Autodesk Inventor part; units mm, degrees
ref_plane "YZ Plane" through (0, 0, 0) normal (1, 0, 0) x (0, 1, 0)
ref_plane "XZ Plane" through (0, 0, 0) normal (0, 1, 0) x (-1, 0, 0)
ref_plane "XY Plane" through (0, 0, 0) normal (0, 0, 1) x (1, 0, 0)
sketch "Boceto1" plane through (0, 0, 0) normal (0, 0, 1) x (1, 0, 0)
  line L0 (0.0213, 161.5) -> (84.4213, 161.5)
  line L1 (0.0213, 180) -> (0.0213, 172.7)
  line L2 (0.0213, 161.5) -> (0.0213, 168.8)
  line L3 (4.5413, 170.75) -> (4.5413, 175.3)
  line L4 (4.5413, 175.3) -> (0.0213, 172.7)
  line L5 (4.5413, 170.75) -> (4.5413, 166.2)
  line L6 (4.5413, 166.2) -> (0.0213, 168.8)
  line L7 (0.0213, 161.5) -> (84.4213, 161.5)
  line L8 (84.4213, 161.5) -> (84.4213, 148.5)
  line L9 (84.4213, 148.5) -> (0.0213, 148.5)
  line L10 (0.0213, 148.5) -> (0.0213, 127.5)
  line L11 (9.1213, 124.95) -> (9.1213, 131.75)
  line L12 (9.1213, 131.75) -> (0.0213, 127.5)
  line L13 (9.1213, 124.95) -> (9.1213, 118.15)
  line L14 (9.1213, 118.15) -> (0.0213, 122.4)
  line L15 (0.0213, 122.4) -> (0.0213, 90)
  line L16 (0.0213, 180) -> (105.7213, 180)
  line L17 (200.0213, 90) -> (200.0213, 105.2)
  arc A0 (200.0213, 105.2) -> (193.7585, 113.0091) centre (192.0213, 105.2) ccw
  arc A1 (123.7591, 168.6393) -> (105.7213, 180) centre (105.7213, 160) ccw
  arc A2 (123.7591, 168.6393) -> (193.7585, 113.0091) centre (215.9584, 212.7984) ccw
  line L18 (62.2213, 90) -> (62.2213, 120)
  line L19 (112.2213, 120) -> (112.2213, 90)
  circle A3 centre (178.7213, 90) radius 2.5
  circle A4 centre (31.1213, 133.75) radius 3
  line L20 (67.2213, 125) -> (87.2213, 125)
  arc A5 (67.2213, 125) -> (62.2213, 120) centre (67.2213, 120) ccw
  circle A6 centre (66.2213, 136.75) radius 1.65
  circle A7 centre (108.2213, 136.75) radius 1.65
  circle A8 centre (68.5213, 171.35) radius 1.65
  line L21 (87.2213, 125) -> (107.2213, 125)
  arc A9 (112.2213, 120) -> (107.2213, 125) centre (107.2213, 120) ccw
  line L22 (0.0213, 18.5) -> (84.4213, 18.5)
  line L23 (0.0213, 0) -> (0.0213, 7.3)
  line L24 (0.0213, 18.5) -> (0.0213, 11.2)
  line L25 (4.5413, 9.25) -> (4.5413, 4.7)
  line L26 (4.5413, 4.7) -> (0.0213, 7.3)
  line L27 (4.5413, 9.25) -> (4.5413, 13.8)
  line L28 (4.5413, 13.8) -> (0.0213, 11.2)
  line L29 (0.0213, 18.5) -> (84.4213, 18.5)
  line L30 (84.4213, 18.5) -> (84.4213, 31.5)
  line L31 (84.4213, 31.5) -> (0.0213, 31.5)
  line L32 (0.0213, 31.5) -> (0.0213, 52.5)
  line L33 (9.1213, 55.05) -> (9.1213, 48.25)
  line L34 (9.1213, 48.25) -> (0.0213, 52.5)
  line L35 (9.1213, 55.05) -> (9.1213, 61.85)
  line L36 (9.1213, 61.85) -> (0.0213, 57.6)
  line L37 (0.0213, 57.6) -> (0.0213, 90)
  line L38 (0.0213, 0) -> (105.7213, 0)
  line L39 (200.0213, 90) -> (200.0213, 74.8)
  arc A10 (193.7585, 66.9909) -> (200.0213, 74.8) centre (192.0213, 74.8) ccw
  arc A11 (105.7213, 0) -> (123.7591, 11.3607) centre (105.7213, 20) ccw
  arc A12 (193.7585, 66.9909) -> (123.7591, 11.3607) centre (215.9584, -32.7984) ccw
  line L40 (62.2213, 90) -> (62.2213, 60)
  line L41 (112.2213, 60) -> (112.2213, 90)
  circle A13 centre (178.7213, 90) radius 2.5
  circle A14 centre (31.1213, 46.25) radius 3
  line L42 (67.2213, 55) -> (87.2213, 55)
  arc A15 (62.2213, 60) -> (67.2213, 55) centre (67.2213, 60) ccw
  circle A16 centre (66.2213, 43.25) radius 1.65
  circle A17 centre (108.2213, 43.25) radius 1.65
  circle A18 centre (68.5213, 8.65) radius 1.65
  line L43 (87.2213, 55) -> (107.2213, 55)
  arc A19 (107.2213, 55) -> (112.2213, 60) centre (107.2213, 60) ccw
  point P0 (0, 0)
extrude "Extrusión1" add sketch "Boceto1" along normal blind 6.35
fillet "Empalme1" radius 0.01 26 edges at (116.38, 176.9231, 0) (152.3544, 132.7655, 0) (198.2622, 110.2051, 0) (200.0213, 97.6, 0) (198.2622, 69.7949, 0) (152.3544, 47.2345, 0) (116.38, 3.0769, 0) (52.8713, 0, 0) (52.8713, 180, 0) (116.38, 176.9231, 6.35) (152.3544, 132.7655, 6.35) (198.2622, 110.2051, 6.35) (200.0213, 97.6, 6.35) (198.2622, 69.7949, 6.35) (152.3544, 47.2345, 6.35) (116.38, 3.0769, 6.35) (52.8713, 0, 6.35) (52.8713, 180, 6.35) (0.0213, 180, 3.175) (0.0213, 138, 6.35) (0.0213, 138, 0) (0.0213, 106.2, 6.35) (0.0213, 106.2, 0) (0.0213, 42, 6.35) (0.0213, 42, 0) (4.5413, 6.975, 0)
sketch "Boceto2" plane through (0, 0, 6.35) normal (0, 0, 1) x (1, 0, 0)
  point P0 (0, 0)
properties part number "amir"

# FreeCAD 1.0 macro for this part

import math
import FreeCAD as App
import Part
import Sketcher
from FreeCAD import Vector
Q = App.Units.Quantity


def edges_at(feature, points):
    """Names of the edges that pass closest to the given points."""
    edges = feature.Shape.Edges
    near = lambda p: min(range(len(edges)), key=lambda i: edges[i].distToShape(Part.Vertex(*p))[0])
    return sorted({f"Edge{near(p) + 1}" for p in points})

doc = App.newDocument("Part")
body = doc.addObject("PartDesign::Body", "Body")

sketch1 = body.newObject("Sketcher::SketchObject", "Sketch")
sketch1.AttachmentSupport = (doc.getObject("XY_Plane"), [""])
sketch1.MapMode = "FlatFace"
sketch1.addGeometry(Part.LineSegment(Vector(0.0213, 168.8, 0), Vector(0.0213, 161.5, 0)), False)
sketch1.addGeometry(Part.LineSegment(Vector(0.0213, 161.5, 0), Vector(84.4213, 161.5, 0)), False)
sketch1.addGeometry(Part.LineSegment(Vector(84.4213, 161.5, 0), Vector(84.4213, 148.5, 0)), False)
sketch1.addGeometry(Part.LineSegment(Vector(84.4213, 148.5, 0), Vector(0.0213, 148.5, 0)), False)
sketch1.addGeometry(Part.LineSegment(Vector(0.0213, 148.5, 0), Vector(0.0213, 127.5, 0)), False)
sketch1.addGeometry(Part.LineSegment(Vector(0.0213, 127.5, 0), Vector(9.1213, 131.75, 0)), False)
sketch1.addGeometry(Part.LineSegment(Vector(9.1213, 131.75, 0), Vector(9.1213, 118.15, 0)), False)
sketch1.addGeometry(Part.LineSegment(Vector(9.1213, 118.15, 0), Vector(0.0213, 122.4, 0)), False)
sketch1.addGeometry(Part.LineSegment(Vector(0.0213, 122.4, 0), Vector(0.0213, 57.6, 0)), False)
sketch1.addGeometry(Part.LineSegment(Vector(0.0213, 57.6, 0), Vector(9.1213, 61.85, 0)), False)
sketch1.addGeometry(Part.LineSegment(Vector(9.1213, 61.85, 0), Vector(9.1213, 48.25, 0)), False)
sketch1.addGeometry(Part.LineSegment(Vector(9.1213, 48.25, 0), Vector(0.0213, 52.5, 0)), False)
sketch1.addGeometry(Part.LineSegment(Vector(0.0213, 52.5, 0), Vector(0.0213, 31.5, 0)), False)
sketch1.addGeometry(Part.LineSegment(Vector(0.0213, 31.5, 0), Vector(84.4213, 31.5, 0)), False)
sketch1.addGeometry(Part.LineSegment(Vector(84.4213, 31.5, 0), Vector(84.4213, 18.5, 0)), False)
sketch1.addGeometry(Part.LineSegment(Vector(84.4213, 18.5, 0), Vector(0.0213, 18.5, 0)), False)
sketch1.addGeometry(Part.LineSegment(Vector(0.0213, 18.5, 0), Vector(0.0213, 11.2, 0)), False)
sketch1.addGeometry(Part.LineSegment(Vector(0.0213, 11.2, 0), Vector(4.5413, 13.8, 0)), False)
sketch1.addGeometry(Part.LineSegment(Vector(4.5413, 13.8, 0), Vector(4.5413, 4.7, 0)), False)
sketch1.addGeometry(Part.LineSegment(Vector(4.5413, 4.7, 0), Vector(0.0213, 7.3, 0)), False)
sketch1.addGeometry(Part.LineSegment(Vector(0.0213, 7.3, 0), Vector(0.0213, 0, 0)), False)
sketch1.addGeometry(Part.LineSegment(Vector(0.0213, 0, 0), Vector(105.7213, 0, 0)), False)
sketch1.addGeometry(Part.ArcOfCircle(Part.Circle(Vector(105.7213, 20, 0), Vector(0, 0, 1), 20), math.radians(-90), math.radians(-25.592338)), False)
sketch1.addGeometry(Part.ArcOfCircle(Part.Circle(Vector(215.9584, -32.7984, 0), Vector(0, 0, 1), 102.228861), math.radians(102.542212), math.radians(154.407785)), False)
sketch1.addGeometry(Part.ArcOfCircle(Part.Circle(Vector(192.0213, 74.8, 0), Vector(0, 0, 1), 7.999994), math.radians(-77.458297), math.radians(0)), False)
sketch1.addGeometry(Part.LineSegment(Vector(200.0213, 74.8, 0), Vector(200.0213, 105.2, 0)), False)
sketch1.addGeometry(Part.ArcOfCircle(Part.Circle(Vector(192.0213, 105.2, 0), Vector(0, 0, 1), 8), math.radians(0), math.radians(77.458297)), False)
sketch1.addGeometry(Part.ArcOfCircle(Part.Circle(Vector(215.9584, 212.7984, 0), Vector(0, 0, 1), 102.228846), math.radians(-154.407785), math.radians(-102.542212)), False)
sketch1.addGeometry(Part.ArcOfCircle(Part.Circle(Vector(105.7213, 160, 0), Vector(0, 0, 1), 19.999993), math.radians(25.592338), math.radians(90)), False)
sketch1.addGeometry(Part.LineSegment(Vector(105.7213, 180, 0), Vector(0.0213, 180, 0)), False)
sketch1.addGeometry(Part.LineSegment(Vector(0.0213, 180, 0), Vector(0.0213, 172.7, 0)), False)
sketch1.addGeometry(Part.LineSegment(Vector(0.0213, 172.7, 0), Vector(4.5413, 175.3, 0)), False)
sketch1.addGeometry(Part.LineSegment(Vector(4.5413, 175.3, 0), Vector(4.5413, 166.2, 0)), False)
sketch1.addGeometry(Part.LineSegment(Vector(4.5413, 166.2, 0), Vector(0.0213, 168.8, 0)), False)
sketch1.addGeometry(Part.Circle(Vector(68.5213, 8.65, 0), Vector(0, 0, 1), 1.65), False)
sketch1.addGeometry(Part.Circle(Vector(66.2213, 43.25, 0), Vector(0, 0, 1), 1.65), False)
sketch1.addGeometry(Part.Circle(Vector(31.1213, 46.25, 0), Vector(0, 0, 1), 3), False)
sketch1.addGeometry(Part.Circle(Vector(108.2213, 43.25, 0), Vector(0, 0, 1), 1.65), False)
sketch1.addGeometry(Part.Circle(Vector(31.1213, 133.75, 0), Vector(0, 0, 1), 3), False)
sketch1.addGeometry(Part.LineSegment(Vector(62.2213, 60, 0), Vector(62.2213, 120, 0)), False)
sketch1.addGeometry(Part.ArcOfCircle(Part.Circle(Vector(67.2213, 120, 0), Vector(0, 0, 1), 5), math.radians(90), math.radians(180)), False)
sketch1.addGeometry(Part.LineSegment(Vector(67.2213, 125, 0), Vector(107.2213, 125, 0)), False)
sketch1.addGeometry(Part.ArcOfCircle(Part.Circle(Vector(107.2213, 120, 0), Vector(0, 0, 1), 5), math.radians(0), math.radians(90)), False)
sketch1.addGeometry(Part.LineSegment(Vector(112.2213, 120, 0), Vector(112.2213, 60, 0)), False)
sketch1.addGeometry(Part.ArcOfCircle(Part.Circle(Vector(107.2213, 60, 0), Vector(0, 0, 1), 5), math.radians(-90), math.radians(0)), False)
sketch1.addGeometry(Part.LineSegment(Vector(107.2213, 55, 0), Vector(67.2213, 55, 0)), False)
sketch1.addGeometry(Part.ArcOfCircle(Part.Circle(Vector(67.2213, 60, 0), Vector(0, 0, 1), 5), math.radians(180), math.radians(270)), False)
sketch1.addGeometry(Part.Circle(Vector(66.2213, 136.75, 0), Vector(0, 0, 1), 1.65), False)
sketch1.addGeometry(Part.Circle(Vector(68.5213, 171.35, 0), Vector(0, 0, 1), 1.65), False)
sketch1.addGeometry(Part.Circle(Vector(178.7213, 90, 0), Vector(0, 0, 1), 2.5), False)
sketch1.addGeometry(Part.Circle(Vector(108.2213, 136.75, 0), Vector(0, 0, 1), 1.65), False)
sketch1.addConstraint(Sketcher.Constraint("Coincident", 0, 2, 1, 1))
sketch1.addConstraint(Sketcher.Constraint("Coincident", 1, 2, 2, 1))
sketch1.addConstraint(Sketcher.Constraint("Coincident", 2, 2, 3, 1))
sketch1.addConstraint(Sketcher.Constraint("Coincident", 3, 2, 4, 1))
sketch1.addConstraint(Sketcher.Constraint("Coincident", 4, 2, 5, 1))
sketch1.addConstraint(Sketcher.Constraint("Coincident", 5, 2, 6, 1))
sketch1.addConstraint(Sketcher.Constraint("Coincident", 6, 2, 7, 1))
sketch1.addConstraint(Sketcher.Constraint("Coincident", 7, 2, 8, 1))
sketch1.addConstraint(Sketcher.Constraint("Coincident", 8, 2, 9, 1))
sketch1.addConstraint(Sketcher.Constraint("Coincident", 9, 2, 10, 1))
sketch1.addConstraint(Sketcher.Constraint("Coincident", 10, 2, 11, 1))
sketch1.addConstraint(Sketcher.Constraint("Coincident", 11, 2, 12, 1))
sketch1.addConstraint(Sketcher.Constraint("Coincident", 12, 2, 13, 1))
sketch1.addConstraint(Sketcher.Constraint("Coincident", 13, 2, 14, 1))
sketch1.addConstraint(Sketcher.Constraint("Coincident", 14, 2, 15, 1))
sketch1.addConstraint(Sketcher.Constraint("Coincident", 15, 2, 16, 1))
sketch1.addConstraint(Sketcher.Constraint("Coincident", 16, 2, 17, 1))
sketch1.addConstraint(Sketcher.Constraint("Coincident", 17, 2, 18, 1))
sketch1.addConstraint(Sketcher.Constraint("Coincident", 18, 2, 19, 1))
sketch1.addConstraint(Sketcher.Constraint("Coincident", 19, 2, 20, 1))
sketch1.addConstraint(Sketcher.Constraint("Coincident", 20, 2, 21, 1))
sketch1.addConstraint(Sketcher.Constraint("Coincident", 21, 2, 22, 1))
sketch1.addConstraint(Sketcher.Constraint("Coincident", 22, 2, 23, 2))
sketch1.addConstraint(Sketcher.Constraint("Coincident", 23, 1, 24, 1))
sketch1.addConstraint(Sketcher.Constraint("Coincident", 24, 2, 25, 1))
sketch1.addConstraint(Sketcher.Constraint("Coincident", 25, 2, 26, 1))
sketch1.addConstraint(Sketcher.Constraint("Coincident", 26, 2, 27, 2))
sketch1.addConstraint(Sketcher.Constraint("Coincident", 27, 1, 28, 1))
sketch1.addConstraint(Sketcher.Constraint("Coincident", 28, 2, 29, 1))
sketch1.addConstraint(Sketcher.Constraint("Coincident", 29, 2, 30, 1))
sketch1.addConstraint(Sketcher.Constraint("Coincident", 30, 2, 31, 1))
sketch1.addConstraint(Sketcher.Constraint("Coincident", 31, 2, 32, 1))
sketch1.addConstraint(Sketcher.Constraint("Coincident", 32, 2, 33, 1))
sketch1.addConstraint(Sketcher.Constraint("Coincident", 33, 2, 0, 1))
sketch1.addConstraint(Sketcher.Constraint("Coincident", 39, 2, 40, 2))
sketch1.addConstraint(Sketcher.Constraint("Coincident", 40, 1, 41, 1))
sketch1.addConstraint(Sketcher.Constraint("Coincident", 41, 2, 42, 2))
sketch1.addConstraint(Sketcher.Constraint("Coincident", 42, 1, 43, 1))
sketch1.addConstraint(Sketcher.Constraint("Coincident", 43, 2, 44, 2))
sketch1.addConstraint(Sketcher.Constraint("Coincident", 44, 1, 45, 1))
sketch1.addConstraint(Sketcher.Constraint("Coincident", 45, 2, 46, 2))
sketch1.addConstraint(Sketcher.Constraint("Coincident", 46, 1, 39, 1))
sketch1.addConstraint(Sketcher.Constraint("Vertical", 0))
sketch1.addConstraint(Sketcher.Constraint("Horizontal", 1))
sketch1.addConstraint(Sketcher.Constraint("Vertical", 2))
sketch1.addConstraint(Sketcher.Constraint("Horizontal", 3))
sketch1.addConstraint(Sketcher.Constraint("Vertical", 4))
sketch1.addConstraint(Sketcher.Constraint("Vertical", 6))
sketch1.addConstraint(Sketcher.Constraint("Vertical", 8))
sketch1.addConstraint(Sketcher.Constraint("Vertical", 10))
sketch1.addConstraint(Sketcher.Constraint("Vertical", 12))
sketch1.addConstraint(Sketcher.Constraint("Horizontal", 13))
sketch1.addConstraint(Sketcher.Constraint("Vertical", 14))
sketch1.addConstraint(Sketcher.Constraint("Horizontal", 15))
sketch1.addConstraint(Sketcher.Constraint("Vertical", 16))
sketch1.addConstraint(Sketcher.Constraint("Vertical", 18))
sketch1.addConstraint(Sketcher.Constraint("Vertical", 20))
sketch1.addConstraint(Sketcher.Constraint("Horizontal", 21))
sketch1.addConstraint(Sketcher.Constraint("Vertical", 25))
sketch1.addConstraint(Sketcher.Constraint("Horizontal", 29))
sketch1.addConstraint(Sketcher.Constraint("Vertical", 30))
sketch1.addConstraint(Sketcher.Constraint("Vertical", 32))
sketch1.addConstraint(Sketcher.Constraint("Vertical", 39))
sketch1.addConstraint(Sketcher.Constraint("Horizontal", 41))
sketch1.addConstraint(Sketcher.Constraint("Vertical", 43))
sketch1.addConstraint(Sketcher.Constraint("Horizontal", 45))
sketch1.addConstraint(Sketcher.Constraint("PointOnObject", 20, 2, -1))
sketch1.addConstraint(Sketcher.Constraint("Diameter", 36, Q("6 mm")))
sketch1.addConstraint(Sketcher.Constraint("Diameter", 38, Q("6 mm")))
sketch1.addConstraint(Sketcher.Constraint("Diameter", 49, Q("5 mm")))
sketch1.addConstraint(Sketcher.Constraint("Radius", 22, Q("20 mm")))
sketch1.addConstraint(Sketcher.Constraint("Radius", 24, Q("8 mm")))
sketch1.addConstraint(Sketcher.Constraint("Radius", 26, Q("8 mm")))
sketch1.addConstraint(Sketcher.Constraint("Radius", 28, Q("20 mm")))
sketch1.addConstraint(Sketcher.Constraint("Radius", 40, Q("5 mm")))
sketch1.addConstraint(Sketcher.Constraint("Radius", 42, Q("5 mm")))
sketch1.addConstraint(Sketcher.Constraint("Radius", 44, Q("5 mm")))
sketch1.addConstraint(Sketcher.Constraint("Radius", 46, Q("5 mm")))
sketch1.addConstraint(Sketcher.Constraint("Diameter", 34, Q("3.3 mm")))
sketch1.addConstraint(Sketcher.Constraint("Diameter", 35, Q("3.3 mm")))
sketch1.addConstraint(Sketcher.Constraint("Diameter", 37, Q("3.3 mm")))
sketch1.addConstraint(Sketcher.Constraint("Diameter", 47, Q("3.3 mm")))
sketch1.addConstraint(Sketcher.Constraint("Diameter", 48, Q("3.3 mm")))
sketch1.addConstraint(Sketcher.Constraint("Diameter", 50, Q("3.3 mm")))
sketch1.addConstraint(Sketcher.Constraint("DistanceX", 41, 1, 41, 2, Q("40 mm")))
sketch1.addConstraint(Sketcher.Constraint("DistanceX", 45, 2, 45, 1, Q("40 mm")))
sketch1.addConstraint(Sketcher.Constraint("DistanceY", 2, 2, 2, 1, Q("13 mm")))
sketch1.addConstraint(Sketcher.Constraint("DistanceY", 4, 2, 4, 1, Q("21 mm")))
sketch1.addConstraint(Sketcher.Constraint("DistanceY", 12, 2, 12, 1, Q("21 mm")))
sketch1.addConstraint(Sketcher.Constraint("DistanceY", 14, 2, 14, 1, Q("13 mm")))
sketch1.addConstraint(Sketcher.Constraint("DistanceY", 39, 1, 39, 2, Q("60 mm")))
sketch1.addConstraint(Sketcher.Constraint("DistanceY", 43, 2, 43, 1, Q("60 mm")))
sketch1.addConstraint(Sketcher.Constraint("DistanceX", 1, 1, 1, 2, Q("84.4 mm")))
sketch1.addConstraint(Sketcher.Constraint("DistanceX", 3, 2, 3, 1, Q("84.4 mm")))
sketch1.addConstraint(Sketcher.Constraint("DistanceX", 13, 1, 13, 2, Q("84.4 mm")))
sketch1.addConstraint(Sketcher.Constraint("DistanceX", 15, 2, 15, 1, Q("84.4 mm")))
sketch1.addConstraint(Sketcher.Constraint("DistanceX", 21, 1, 21, 2, Q("105.7 mm")))
sketch1.addConstraint(Sketcher.Constraint("DistanceX", 29, 2, 29, 1, Q("105.7 mm")))
sketch1.addConstraint(Sketcher.Constraint("DistanceY", 0, 2, 0, 1, Q("7.3 mm")))
sketch1.addConstraint(Sketcher.Constraint("DistanceY", 6, 2, 6, 1, Q("13.6 mm")))
sketch1.addConstraint(Sketcher.Constraint("DistanceY", 8, 2, 8, 1, Q("64.8 mm")))
sketch1.addConstraint(Sketcher.Constraint("DistanceY", 10, 2, 10, 1, Q("13.6 mm")))
sketch1.addConstraint(Sketcher.Constraint("DistanceY", 16, 2, 16, 1, Q("7.3 mm")))
sketch1.addConstraint(Sketcher.Constraint("DistanceY", 18, 2, 18, 1, Q("9.1 mm")))
sketch1.addConstraint(Sketcher.Constraint("DistanceY", 20, 2, 20, 1, Q("7.3 mm")))
sketch1.addConstraint(Sketcher.Constraint("DistanceY", 25, 1, 25, 2, Q("30.4 mm")))
sketch1.addConstraint(Sketcher.Constraint("DistanceY", 30, 2, 30, 1, Q("7.3 mm")))
sketch1.addConstraint(Sketcher.Constraint("DistanceY", 32, 2, 32, 1, Q("9.1 mm")))
sketch1.addConstraint(Sketcher.Constraint("DistanceY", -1, 1, 28, 3, Q("160 mm")))
sketch1.addConstraint(Sketcher.Constraint("DistanceY", -1, 1, 40, 3, Q("120 mm")))
sketch1.addConstraint(Sketcher.Constraint("DistanceY", -1, 1, 44, 3, Q("60 mm")))
sketch1.addConstraint(Sketcher.Constraint("DistanceY", -1, 1, 49, 3, Q("90 mm")))
sketch1.addConstraint(Sketcher.Constraint("DistanceY", -1, 1, 39, 2, Q("120 mm")))
sketch1.addConstraint(Sketcher.Constraint("DistanceY", -1, 1, 42, 1, Q("120 mm")))
sketch1.addConstraint(Sketcher.Constraint("DistanceY", -1, 1, 24, 3, Q("74.8 mm")))
sketch1.addConstraint(Sketcher.Constraint("DistanceY", -1, 1, 26, 3, Q("105.2 mm")))
sketch1.addConstraint(Sketcher.Constraint("DistanceY", -1, 1, 0, 2, Q("161.5 mm")))
sketch1.addConstraint(Sketcher.Constraint("DistanceY", -1, 1, 7, 2, Q("122.4 mm")))
sketch1.addConstraint(Sketcher.Constraint("DistanceY", -1, 1, 11, 2, Q("52.5 mm")))
sketch1.addConstraint(Sketcher.Constraint("DistanceY", -1, 1, 17, 2, Q("13.8 mm")))
sketch1.addConstraint(Sketcher.Constraint("DistanceY", -1, 1, 24, 2, Q("74.8 mm")))
sketch1.addConstraint(Sketcher.Constraint("DistanceY", -1, 1, 31, 2, Q("175.3 mm")))
sketch1.addConstraint(Sketcher.Constraint("Radius", 23, Q("102.2289 mm")))
sketch1.addConstraint(Sketcher.Constraint("Radius", 27, Q("102.2288 mm")))
sketch1.addConstraint(Sketcher.Constraint("DistanceY", -1, 1, 34, 3, Q("8.65 mm")))
sketch1.addConstraint(Sketcher.Constraint("DistanceY", -1, 1, 35, 3, Q("43.25 mm")))
sketch1.addConstraint(Sketcher.Constraint("DistanceY", -1, 1, 36, 3, Q("46.25 mm")))
sketch1.addConstraint(Sketcher.Constraint("DistanceY", -1, 1, 37, 3, Q("43.25 mm")))
sketch1.addConstraint(Sketcher.Constraint("DistanceY", -1, 1, 38, 3, Q("133.75 mm")))
sketch1.addConstraint(Sketcher.Constraint("DistanceY", -1, 1, 47, 3, Q("136.75 mm")))
sketch1.addConstraint(Sketcher.Constraint("DistanceY", -1, 1, 48, 3, Q("171.35 mm")))
sketch1.addConstraint(Sketcher.Constraint("DistanceY", -1, 1, 50, 3, Q("136.75 mm")))
sketch1.addConstraint(Sketcher.Constraint("DistanceY", -1, 1, 5, 2, Q("131.75 mm")))
sketch1.addConstraint(Sketcher.Constraint("DistanceY", -1, 1, 9, 2, Q("61.85 mm")))
sketch1.addConstraint(Sketcher.Constraint("DistanceX", -1, 1, 22, 2, Q("123.759 mm")))
sketch1.addConstraint(Sketcher.Constraint("DistanceY", -1, 1, 23, 1, Q("66.991 mm")))
sketch1.addConstraint(Sketcher.Constraint("DistanceY", -1, 1, 26, 2, Q("113.009 mm")))
sketch1.addConstraint(Sketcher.Constraint("DistanceX", -1, 1, 27, 1, Q("123.759 mm")))
sketch1.addConstraint(Sketcher.Constraint("Distance", 5, Q("10.0435 mm")))
sketch1.addConstraint(Sketcher.Constraint("Distance", 7, Q("10.0435 mm")))
sketch1.addConstraint(Sketcher.Constraint("Distance", 9, Q("10.0435 mm")))
sketch1.addConstraint(Sketcher.Constraint("Distance", 11, Q("10.0435 mm")))
sketch1.addConstraint(Sketcher.Constraint("Distance", 17, Q("5.2144 mm")))
sketch1.addConstraint(Sketcher.Constraint("Distance", 19, Q("5.2144 mm")))
sketch1.addConstraint(Sketcher.Constraint("Distance", 31, Q("5.2144 mm")))
sketch1.addConstraint(Sketcher.Constraint("Distance", 33, Q("5.2144 mm")))
sketch1.addConstraint(Sketcher.Constraint("DistanceX", -1, 1, 22, 3, Q("105.7213 mm")))
sketch1.addConstraint(Sketcher.Constraint("DistanceX", -1, 1, 23, 3, Q("215.9584 mm")))
sketch1.addConstraint(Sketcher.Constraint("DistanceX", -1, 1, 27, 3, Q("215.9584 mm")))
sketch1.addConstraint(Sketcher.Constraint("DistanceX", -1, 1, 34, 3, Q("68.5213 mm")))
sketch1.addConstraint(Sketcher.Constraint("DistanceX", -1, 1, 35, 3, Q("66.2213 mm")))
sketch1.addConstraint(Sketcher.Constraint("DistanceX", -1, 1, 36, 3, Q("31.1213 mm")))
sketch1.addConstraint(Sketcher.Constraint("DistanceX", -1, 1, 37, 3, Q("108.2213 mm")))
sketch1.addConstraint(Sketcher.Constraint("DistanceX", -1, 1, 38, 3, Q("31.1213 mm")))
sketch1.addConstraint(Sketcher.Constraint("DistanceX", -1, 1, 40, 3, Q("67.2213 mm")))
sketch1.addConstraint(Sketcher.Constraint("DistanceX", -1, 1, 42, 3, Q("107.2213 mm")))
sketch1.addConstraint(Sketcher.Constraint("DistanceX", -1, 1, 47, 3, Q("66.2213 mm")))
sketch1.addConstraint(Sketcher.Constraint("DistanceX", -1, 1, 48, 3, Q("68.5213 mm")))
sketch1.addConstraint(Sketcher.Constraint("DistanceX", -1, 1, 49, 3, Q("178.7213 mm")))
sketch1.addConstraint(Sketcher.Constraint("DistanceX", -1, 1, 50, 3, Q("108.2213 mm")))
sketch1.addConstraint(Sketcher.Constraint("DistanceX", -1, 1, 0, 2, Q("0.0213 mm")))
sketch1.addConstraint(Sketcher.Constraint("DistanceX", -1, 1, 40, 1, Q("67.2213 mm")))
sketch1.addConstraint(Sketcher.Constraint("DistanceX", -1, 1, 44, 1, Q("107.2213 mm")))
pad1 = body.newObject("PartDesign::Pad", "Pad")
pad1.Profile = sketch1
pad1.Length = 6.35
doc.recompute()

fillet = body.newObject("PartDesign::Fillet", "Fillet")
fillet.Base = (pad1, edges_at(pad1, [
    (116.38, 176.923, 0),
    (152.354, 132.766, 0),
    (198.262, 110.205, 0),
    (200.021, 97.6, 0),
    (198.262, 69.795, 0),
    (152.354, 47.234, 0),
    (116.38, 3.077, 0),
    (52.871, 0, 0),
    (52.871, 180, 0),
    (116.38, 176.923, 6.35),
    (152.354, 132.766, 6.35),
    (198.262, 110.205, 6.35),
    (200.021, 97.6, 6.35),
    (198.262, 69.795, 6.35),
    (152.354, 47.234, 6.35),
    (116.38, 3.077, 6.35),
    (52.871, 0, 6.35),
    (52.871, 180, 6.35),
    (0.021, 180, 3.175),
    (0.021, 138, 6.35),
    (0.021, 138, 0),
    (0.021, 106.2, 6.35),
    (0.021, 106.2, 0),
    (0.021, 42, 6.35),
    (0.021, 42, 0),
    (4.541, 6.975, 0),
]))
fillet.Radius = 0.01

doc.recompute()
